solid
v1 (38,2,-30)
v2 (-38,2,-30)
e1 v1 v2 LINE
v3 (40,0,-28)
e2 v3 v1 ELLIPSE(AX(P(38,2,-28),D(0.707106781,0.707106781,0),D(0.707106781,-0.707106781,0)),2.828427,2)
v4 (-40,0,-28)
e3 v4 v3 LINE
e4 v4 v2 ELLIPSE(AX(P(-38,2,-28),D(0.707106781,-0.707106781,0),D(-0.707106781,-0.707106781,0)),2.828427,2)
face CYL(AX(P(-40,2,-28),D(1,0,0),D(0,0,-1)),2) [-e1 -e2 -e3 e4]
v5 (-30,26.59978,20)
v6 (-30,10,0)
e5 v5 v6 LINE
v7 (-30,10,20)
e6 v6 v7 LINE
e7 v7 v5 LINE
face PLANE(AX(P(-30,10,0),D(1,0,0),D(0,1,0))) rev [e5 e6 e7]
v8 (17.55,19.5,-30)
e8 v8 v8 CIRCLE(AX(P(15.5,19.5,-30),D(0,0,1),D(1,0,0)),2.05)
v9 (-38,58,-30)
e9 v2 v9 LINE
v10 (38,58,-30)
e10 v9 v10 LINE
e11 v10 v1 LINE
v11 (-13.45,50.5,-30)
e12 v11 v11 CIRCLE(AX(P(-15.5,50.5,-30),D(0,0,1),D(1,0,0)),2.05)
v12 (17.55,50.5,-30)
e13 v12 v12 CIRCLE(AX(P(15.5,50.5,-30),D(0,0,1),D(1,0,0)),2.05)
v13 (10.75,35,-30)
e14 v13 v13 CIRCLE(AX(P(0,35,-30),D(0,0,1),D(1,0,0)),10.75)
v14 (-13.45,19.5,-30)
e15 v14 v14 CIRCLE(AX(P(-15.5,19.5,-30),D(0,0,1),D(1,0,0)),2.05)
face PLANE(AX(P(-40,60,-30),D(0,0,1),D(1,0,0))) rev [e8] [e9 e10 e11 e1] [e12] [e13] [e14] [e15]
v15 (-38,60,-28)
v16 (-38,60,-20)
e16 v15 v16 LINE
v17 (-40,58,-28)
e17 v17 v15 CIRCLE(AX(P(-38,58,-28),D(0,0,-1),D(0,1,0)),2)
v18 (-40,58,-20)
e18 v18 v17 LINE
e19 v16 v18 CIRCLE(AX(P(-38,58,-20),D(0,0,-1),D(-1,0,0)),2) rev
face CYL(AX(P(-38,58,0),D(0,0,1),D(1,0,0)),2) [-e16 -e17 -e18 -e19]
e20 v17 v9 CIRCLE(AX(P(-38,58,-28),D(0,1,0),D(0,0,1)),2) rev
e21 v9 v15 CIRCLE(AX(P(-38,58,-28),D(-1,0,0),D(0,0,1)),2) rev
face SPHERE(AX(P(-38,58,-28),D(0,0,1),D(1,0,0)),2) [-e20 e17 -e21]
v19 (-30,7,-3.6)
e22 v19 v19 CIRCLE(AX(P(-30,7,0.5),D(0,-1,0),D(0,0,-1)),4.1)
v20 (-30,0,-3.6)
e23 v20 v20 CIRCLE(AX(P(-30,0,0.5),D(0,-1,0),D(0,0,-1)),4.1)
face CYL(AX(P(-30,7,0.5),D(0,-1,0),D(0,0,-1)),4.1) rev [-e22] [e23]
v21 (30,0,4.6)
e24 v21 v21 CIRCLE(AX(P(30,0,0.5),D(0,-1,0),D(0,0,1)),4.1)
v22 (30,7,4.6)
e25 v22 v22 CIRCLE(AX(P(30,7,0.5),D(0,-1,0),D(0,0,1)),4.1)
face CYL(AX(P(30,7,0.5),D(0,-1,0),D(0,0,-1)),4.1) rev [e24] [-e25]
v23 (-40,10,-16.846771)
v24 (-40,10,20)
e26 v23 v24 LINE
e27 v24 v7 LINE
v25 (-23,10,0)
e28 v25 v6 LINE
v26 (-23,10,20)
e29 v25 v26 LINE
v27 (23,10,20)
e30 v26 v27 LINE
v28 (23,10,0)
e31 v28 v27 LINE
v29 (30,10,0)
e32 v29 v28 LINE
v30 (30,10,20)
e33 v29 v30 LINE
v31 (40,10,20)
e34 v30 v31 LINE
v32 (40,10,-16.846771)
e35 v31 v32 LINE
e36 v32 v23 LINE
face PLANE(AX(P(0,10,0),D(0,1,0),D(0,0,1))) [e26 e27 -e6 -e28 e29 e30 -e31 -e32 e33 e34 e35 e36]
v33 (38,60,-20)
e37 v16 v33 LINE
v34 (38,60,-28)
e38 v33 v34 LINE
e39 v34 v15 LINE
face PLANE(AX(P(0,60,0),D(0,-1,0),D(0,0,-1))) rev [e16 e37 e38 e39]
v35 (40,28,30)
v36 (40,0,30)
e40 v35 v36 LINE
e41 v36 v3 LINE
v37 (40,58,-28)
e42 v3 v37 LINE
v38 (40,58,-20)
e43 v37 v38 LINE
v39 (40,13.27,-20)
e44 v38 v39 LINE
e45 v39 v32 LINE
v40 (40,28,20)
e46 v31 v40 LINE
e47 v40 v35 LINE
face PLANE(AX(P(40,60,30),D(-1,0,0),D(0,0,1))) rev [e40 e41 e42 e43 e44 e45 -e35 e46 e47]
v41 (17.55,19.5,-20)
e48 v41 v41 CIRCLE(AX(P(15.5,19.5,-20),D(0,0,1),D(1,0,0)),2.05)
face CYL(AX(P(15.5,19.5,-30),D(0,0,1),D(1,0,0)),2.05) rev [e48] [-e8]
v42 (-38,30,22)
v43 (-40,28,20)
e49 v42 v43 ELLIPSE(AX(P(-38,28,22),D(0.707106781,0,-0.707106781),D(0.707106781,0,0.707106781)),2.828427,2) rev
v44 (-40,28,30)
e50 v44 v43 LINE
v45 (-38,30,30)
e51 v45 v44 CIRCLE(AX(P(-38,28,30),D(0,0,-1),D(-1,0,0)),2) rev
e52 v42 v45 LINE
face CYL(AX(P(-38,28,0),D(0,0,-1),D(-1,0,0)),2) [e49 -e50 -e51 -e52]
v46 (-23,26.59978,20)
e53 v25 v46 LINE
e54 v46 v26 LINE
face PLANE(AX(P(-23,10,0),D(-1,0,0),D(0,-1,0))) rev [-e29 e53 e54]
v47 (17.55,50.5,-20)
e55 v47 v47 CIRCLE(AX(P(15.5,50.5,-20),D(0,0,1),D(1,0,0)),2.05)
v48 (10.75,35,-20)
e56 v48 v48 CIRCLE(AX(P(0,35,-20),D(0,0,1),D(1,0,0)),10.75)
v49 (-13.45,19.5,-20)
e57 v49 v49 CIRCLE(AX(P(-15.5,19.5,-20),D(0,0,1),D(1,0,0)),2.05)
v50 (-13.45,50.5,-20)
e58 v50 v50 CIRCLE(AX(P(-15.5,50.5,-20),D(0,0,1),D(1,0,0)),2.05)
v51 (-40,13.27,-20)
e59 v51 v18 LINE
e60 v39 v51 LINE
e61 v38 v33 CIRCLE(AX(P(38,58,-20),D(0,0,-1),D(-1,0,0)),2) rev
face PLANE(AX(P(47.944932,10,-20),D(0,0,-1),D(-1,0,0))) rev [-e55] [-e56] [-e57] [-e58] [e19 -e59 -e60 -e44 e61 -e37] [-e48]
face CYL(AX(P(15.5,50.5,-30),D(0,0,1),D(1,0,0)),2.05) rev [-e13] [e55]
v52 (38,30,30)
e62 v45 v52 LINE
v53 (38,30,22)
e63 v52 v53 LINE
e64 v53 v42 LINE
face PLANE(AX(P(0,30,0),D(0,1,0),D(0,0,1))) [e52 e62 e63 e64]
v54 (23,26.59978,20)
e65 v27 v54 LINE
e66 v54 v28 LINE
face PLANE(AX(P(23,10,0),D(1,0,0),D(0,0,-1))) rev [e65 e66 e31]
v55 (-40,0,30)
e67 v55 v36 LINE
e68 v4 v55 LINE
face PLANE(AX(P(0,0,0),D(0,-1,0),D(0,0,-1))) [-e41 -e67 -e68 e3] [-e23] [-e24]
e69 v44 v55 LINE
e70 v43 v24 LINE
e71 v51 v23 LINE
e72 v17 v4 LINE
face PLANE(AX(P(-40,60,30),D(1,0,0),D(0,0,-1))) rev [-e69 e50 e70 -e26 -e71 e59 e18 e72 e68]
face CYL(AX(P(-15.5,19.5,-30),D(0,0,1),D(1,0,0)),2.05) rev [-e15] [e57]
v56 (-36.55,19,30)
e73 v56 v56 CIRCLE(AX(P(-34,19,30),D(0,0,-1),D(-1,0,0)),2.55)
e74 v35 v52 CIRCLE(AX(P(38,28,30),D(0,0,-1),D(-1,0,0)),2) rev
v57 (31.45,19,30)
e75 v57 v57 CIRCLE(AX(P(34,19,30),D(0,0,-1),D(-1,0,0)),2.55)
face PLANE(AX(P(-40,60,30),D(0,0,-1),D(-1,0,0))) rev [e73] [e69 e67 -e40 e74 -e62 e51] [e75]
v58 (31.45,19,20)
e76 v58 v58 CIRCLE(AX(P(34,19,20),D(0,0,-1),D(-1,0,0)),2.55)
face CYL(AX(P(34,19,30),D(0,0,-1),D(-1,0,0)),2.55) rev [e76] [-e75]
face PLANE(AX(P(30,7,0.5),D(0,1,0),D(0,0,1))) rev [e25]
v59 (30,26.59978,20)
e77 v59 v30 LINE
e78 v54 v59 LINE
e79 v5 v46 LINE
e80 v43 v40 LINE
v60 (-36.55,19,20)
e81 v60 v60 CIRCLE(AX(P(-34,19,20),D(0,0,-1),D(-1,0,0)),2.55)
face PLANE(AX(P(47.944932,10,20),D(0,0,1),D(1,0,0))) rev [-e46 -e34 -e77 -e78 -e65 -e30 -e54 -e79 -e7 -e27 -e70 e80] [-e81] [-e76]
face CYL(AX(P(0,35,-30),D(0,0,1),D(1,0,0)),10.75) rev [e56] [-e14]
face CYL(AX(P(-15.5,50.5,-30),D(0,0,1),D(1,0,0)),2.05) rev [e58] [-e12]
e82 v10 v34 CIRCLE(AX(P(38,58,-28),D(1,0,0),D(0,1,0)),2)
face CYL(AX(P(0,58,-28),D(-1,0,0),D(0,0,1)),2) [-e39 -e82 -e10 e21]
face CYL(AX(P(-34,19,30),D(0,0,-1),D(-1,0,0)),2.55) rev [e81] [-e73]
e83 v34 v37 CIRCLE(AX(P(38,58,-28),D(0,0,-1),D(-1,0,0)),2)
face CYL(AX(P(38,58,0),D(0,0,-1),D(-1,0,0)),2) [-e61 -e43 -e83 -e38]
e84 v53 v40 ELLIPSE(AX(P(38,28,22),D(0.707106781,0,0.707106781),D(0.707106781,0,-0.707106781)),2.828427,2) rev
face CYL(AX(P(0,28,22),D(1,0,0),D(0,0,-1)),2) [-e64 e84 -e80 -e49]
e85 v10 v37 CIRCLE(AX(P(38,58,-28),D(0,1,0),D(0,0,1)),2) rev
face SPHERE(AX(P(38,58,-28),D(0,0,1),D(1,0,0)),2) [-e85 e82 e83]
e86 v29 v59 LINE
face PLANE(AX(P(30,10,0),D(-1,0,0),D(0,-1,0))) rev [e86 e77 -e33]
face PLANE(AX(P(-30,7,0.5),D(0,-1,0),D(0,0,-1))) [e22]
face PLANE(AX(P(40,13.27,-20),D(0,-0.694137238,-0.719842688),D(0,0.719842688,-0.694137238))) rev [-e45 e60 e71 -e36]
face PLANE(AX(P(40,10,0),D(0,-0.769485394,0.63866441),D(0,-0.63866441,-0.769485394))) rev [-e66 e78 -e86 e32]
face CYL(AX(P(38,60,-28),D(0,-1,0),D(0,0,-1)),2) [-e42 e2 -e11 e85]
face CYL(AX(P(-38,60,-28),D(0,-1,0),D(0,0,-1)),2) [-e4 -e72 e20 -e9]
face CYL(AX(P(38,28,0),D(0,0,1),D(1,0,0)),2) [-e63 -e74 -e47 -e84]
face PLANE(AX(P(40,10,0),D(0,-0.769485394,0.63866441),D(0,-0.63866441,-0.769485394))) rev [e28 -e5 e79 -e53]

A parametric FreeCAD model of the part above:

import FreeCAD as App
import Part
import Sketcher


def edges_at(feature, points):
    """Names of the edges that pass closest to the given points."""
    edges = feature.Shape.Edges
    near = lambda p: min(range(len(edges)), key=lambda i: edges[i].distToShape(Part.Vertex(*p))[0])
    return sorted({f"Edge{near(p) + 1}" for p in points})


def add_polygon(sketch, points):
    """Adds a closed chain of lines whose ends are joined by coincident constraints."""
    first, n = sketch.GeometryCount, len(points)
    for a, b in zip(points, points[1:] + points[:1]):
        sketch.addGeometry(Part.LineSegment(App.Vector(*a, 0), App.Vector(*b, 0)), False)
    for i in range(n):
        sketch.addConstraint(Sketcher.Constraint("Coincident", first + i, 2, first + (i + 1) % n, 1))

doc = App.newDocument("Part")
body = doc.addObject("PartDesign::Body", "Body")

sketch1 = body.newObject("Sketcher::SketchObject", "Sketch")
sketch1.AttachmentSupport = (doc.getObject("XZ_Plane"), [""])
sketch1.MapMode = "FlatFace"
add_polygon(sketch1, [(-40, -30), (-40, 30), (40, 30), (40, -30)])
sketch1.addConstraint([
    Sketcher.Constraint("Vertical", 0),
    Sketcher.Constraint("Horizontal", 1),
    Sketcher.Constraint("Vertical", 2),
    Sketcher.Constraint("Horizontal", 3),
    Sketcher.Constraint("Symmetric", 0, 2, 2, 2, -1, 1),
    Sketcher.Constraint("DistanceX", 1, 1, 1, 2, 80.0),
    Sketcher.Constraint("DistanceY", 0, 1, 0, 2, 60.0),
])
pad1 = body.newObject("PartDesign::Pad", "Pad")
pad1.Profile = sketch1
pad1.Length = 60
pad1.Reversed = True

sketch2 = body.newObject("Sketcher::SketchObject", "Sketch001")
sketch2.AttachmentSupport = (doc.getObject("XZ_Plane"), [""])
sketch2.MapMode = "FlatFace"
sketch2.AttachmentOffset = App.Placement(App.Vector(0, 0, -60), App.Rotation())
add_polygon(sketch2, [(-48, -20), (-48, 20), (48, 20), (48, -20)])
sketch2.addConstraint([
    Sketcher.Constraint("Vertical", 0),
    Sketcher.Constraint("Horizontal", 1),
    Sketcher.Constraint("Vertical", 2),
    Sketcher.Constraint("Horizontal", 3),
    Sketcher.Constraint("Symmetric", 0, 2, 2, 2, -1, 1),
    Sketcher.Constraint("DistanceY", 0, 1, 0, 2, 40.0),
    Sketcher.Constraint("DistanceX", 1, 1, 1, 2, 95.889865),
])
pocket1 = body.newObject("PartDesign::Pocket", "Pocket")
pocket1.Profile = sketch2
pocket1.Length = 50
pocket1.Reversed = True

sketch3 = body.newObject("Sketcher::SketchObject", "Sketch002")
sketch3.AttachmentSupport = (doc.getObject("XZ_Plane"), [""])
sketch3.MapMode = "FlatFace"
sketch3.AttachmentOffset = App.Placement(App.Vector(0, 0, -60), App.Rotation())
add_polygon(sketch3, [(-40, 20), (-40, 30), (40, 30), (40, 20)])
sketch3.addConstraint([
    Sketcher.Constraint("Vertical", 0),
    Sketcher.Constraint("Horizontal", 1),
    Sketcher.Constraint("Vertical", 2),
    Sketcher.Constraint("Horizontal", 3),
    Sketcher.Constraint("DistanceX", 1, 1, 1, 2, 80.0),
    Sketcher.Constraint("DistanceY", 0, 1, 0, 2, 10.0),
    Sketcher.Constraint("DistanceX", 0, 2, -1, 1, 40.0),
    Sketcher.Constraint("DistanceY", -1, 1, 0, 2, 30.0),
])
pocket2 = body.newObject("PartDesign::Pocket", "Pocket001")
pocket2.Profile = sketch3
pocket2.Length = 30
pocket2.Reversed = True

sketch4 = body.newObject("Sketcher::SketchObject", "Sketch003")
sketch4.AttachmentSupport = (doc.getObject("XZ_Plane"), [""])
sketch4.MapMode = "FlatFace"
sketch4.addGeometry([
    Part.Circle(App.Vector(-30, 0.5, 0), App.Vector(0, 0, 1), 4.1),
    Part.Circle(App.Vector(30, 0.5, 0), App.Vector(0, 0, 1), 4.1),
], False)
sketch4.addConstraint([
    Sketcher.Constraint("Equal", 0, 1),
    Sketcher.Constraint("Symmetric", 0, 3, 1, 3, -2),
    Sketcher.Constraint("Diameter", 0, 8.2),
    Sketcher.Constraint("DistanceX", 0, 3, -1, 1, 30.0),
    Sketcher.Constraint("DistanceY", -1, 1, 0, 3, 0.5),
])
pocket3 = body.newObject("PartDesign::Pocket", "Pocket002")
pocket3.Profile = sketch4
pocket3.Length = 7

sketch5 = body.newObject("Sketcher::SketchObject", "Sketch004")
sketch5.AttachmentSupport = (doc.getObject("XY_Plane"), [""])
sketch5.MapMode = "FlatFace"
sketch5.AttachmentOffset = App.Placement(App.Vector(0, 0, -20), App.Rotation())
sketch5.addGeometry(Part.Circle(App.Vector(0, 35, 0), App.Vector(0, 0, 1), 11), False)
sketch5.addConstraint([
    Sketcher.Constraint("PointOnObject", 0, 3, -2),
    Sketcher.Constraint("Diameter", 0, 21.5),
    Sketcher.Constraint("DistanceY", -1, 1, 0, 3, 35.0),
])
pocket4 = body.newObject("PartDesign::Pocket", "Pocket003")
pocket4.Profile = sketch5
pocket4.Type = "ThroughAll"

sketch6 = body.newObject("Sketcher::SketchObject", "Sketch005")
sketch6.AttachmentSupport = (doc.getObject("XY_Plane"), [""])
sketch6.MapMode = "FlatFace"
sketch6.AttachmentOffset = App.Placement(App.Vector(0, 0, -20), App.Rotation())
sketch6.addGeometry([
    Part.Circle(App.Vector(15.5, 50.5, 0), App.Vector(0, 0, 1), 2),
    Part.Circle(App.Vector(-15.5, 19.5, 0), App.Vector(0, 0, 1), 2),
    Part.Circle(App.Vector(-15.5, 50.5, 0), App.Vector(0, 0, 1), 2),
    Part.Circle(App.Vector(15.5, 19.5, 0), App.Vector(0, 0, 1), 2),
], False)
sketch6.addConstraint([
    Sketcher.Constraint("Equal", 0, 1),
    Sketcher.Constraint("Equal", 1, 2),
    Sketcher.Constraint("Equal", 2, 3),
    Sketcher.Constraint("Symmetric", 0, 3, 2, 3, -2),
    Sketcher.Constraint("Symmetric", 1, 3, 3, 3, -2),
    Sketcher.Constraint("Vertical", 1, 3, 2, 3),
    Sketcher.Constraint("Diameter", 0, 4.1),
    Sketcher.Constraint("DistanceX", 1, 3, 0, 3, 31.0),
    Sketcher.Constraint("DistanceY", 1, 3, 0, 3, 31.0),
    Sketcher.Constraint("DistanceY", -1, 1, 0, 3, 50.5),
])
pocket5 = body.newObject("PartDesign::Pocket", "Pocket004")
pocket5.Profile = sketch6
pocket5.Type = "ThroughAll"
doc.recompute()

fillet = body.newObject("PartDesign::Fillet", "Fillet")
fillet.Base = (pocket5, edges_at(pocket5, [
    (-40, 60, -25),
    (40, 60, -25),
    (-40, 30, 25),
    (0, 30, 20),
    (40, 30, 25),
    (0, 0, -30),
    (-40, 30, -30),
    (40, 30, -30),
    (0, 60, -30),
]))
fillet.Radius = 2

sketch7 = body.newObject("Sketcher::SketchObject", "Sketch006")
sketch7.AttachmentSupport = (doc.getObject("XY_Plane"), [""])
sketch7.MapMode = "FlatFace"
sketch7.AttachmentOffset = App.Placement(App.Vector(0, 0, 20), App.Rotation())
sketch7.addGeometry([
    Part.Circle(App.Vector(34, 19, 0), App.Vector(0, 0, 1), 2.5),
    Part.Circle(App.Vector(-34, 19, 0), App.Vector(0, 0, 1), 2.5),
], False)
sketch7.addConstraint([
    Sketcher.Constraint("Equal", 0, 1),
    Sketcher.Constraint("Symmetric", 0, 3, 1, 3, -2),
    Sketcher.Constraint("Diameter", 0, 5.1),
    Sketcher.Constraint("DistanceX", -1, 1, 0, 3, 34.0),
    Sketcher.Constraint("DistanceY", -1, 1, 0, 3, 19.0),
])
pocket6 = body.newObject("PartDesign::Pocket", "Pocket005")
pocket6.Profile = sketch7
pocket6.Type = "ThroughAll"
pocket6.Reversed = True

sketch8 = body.newObject("Sketcher::SketchObject", "Sketch007")
sketch8.AttachmentSupport = (doc.getObject("XY_Plane"), [""])
sketch8.MapMode = "FlatFace"
sketch8.AttachmentOffset = App.Placement(App.Vector(0, 0, 20), App.Rotation())
add_polygon(sketch8, [(30, 27), (30, 10), (23, 10), (23, 27)])
add_polygon(sketch8, [(-23, 27), (-23, 10), (-30, 10), (-30, 27)])
sketch8.addConstraint([
    Sketcher.Constraint("Vertical", 0),
    Sketcher.Constraint("Horizontal", 1),
    Sketcher.Constraint("Vertical", 2),
    Sketcher.Constraint("Horizontal", 3),
    Sketcher.Constraint("Vertical", 4),
    Sketcher.Constraint("Horizontal", 5),
    Sketcher.Constraint("Vertical", 6),
    Sketcher.Constraint("Horizontal", 7),
    Sketcher.Constraint("Symmetric", 1, 2, 4, 2, -2),
    Sketcher.Constraint("Symmetric", 3, 2, 6, 2, -2),
    Sketcher.Constraint("DistanceX", 1, 2, 1, 1, 7.0),
    Sketcher.Constraint("DistanceX", -1, 1, 0, 2, 30.0),
    Sketcher.Constraint("DistanceY", -1, 1, 0, 2, 10.0),
    Sketcher.Constraint("DistanceY", 0, 2, 0, 1, 16.59978),
])
pad2 = body.newObject("PartDesign::Pad", "Pad001")
pad2.Profile = sketch8
pad2.Length = 20
pad2.Reversed = True

sketch9 = body.newObject("Sketcher::SketchObject", "Sketch008")
sketch9.AttachmentSupport = (doc.getObject("YZ_Plane"), [""])
sketch9.MapMode = "FlatFace"
sketch9.AttachmentOffset = App.Placement(App.Vector(0, 0, -30), App.Rotation())
add_polygon(sketch9, [(10, 0), (27, 20), (27, 0)])
sketch9.addConstraint([
    Sketcher.Constraint("Vertical", 1),
    Sketcher.Constraint("Horizontal", 2),
    Sketcher.Constraint("PointOnObject", 1, 2, -1),
    Sketcher.Constraint("DistanceY", 1, 2, 1, 1, 20.0),
    Sketcher.Constraint("DistanceX", -1, 1, 2, 2, 10.0),
    Sketcher.Constraint("DistanceX", 2, 2, 2, 1, 16.59978),
])
pocket7 = body.newObject("PartDesign::Pocket", "Pocket006")
pocket7.Profile = sketch9
pocket7.Type = "ThroughAll"
pocket7.Midplane = True

sketch10 = body.newObject("Sketcher::SketchObject", "Sketch009")
sketch10.AttachmentSupport = (doc.getObject("YZ_Plane"), [""])
sketch10.MapMode = "FlatFace"
add_polygon(sketch10, [(13.3, -20), (10, -16.8), (10, -20)])
sketch10.addConstraint([
    Sketcher.Constraint("Vertical", 1),
    Sketcher.Constraint("Horizontal", 2),
    Sketcher.Constraint("DistanceX", -1, 1, 0, 2, 10.0),
    Sketcher.Constraint("DistanceY", 1, 2, -1, 1, 20.0),
    Sketcher.Constraint("DistanceX", 2, 1, 2, 2, 3.27),
    Sketcher.Constraint("DistanceY", 1, 2, 1, 1, 3.153229),
])
pad3 = body.newObject("PartDesign::Pad", "Pad002")
pad3.Profile = sketch10
pad3.Length = 80
pad3.Midplane = True

doc.recompute()
